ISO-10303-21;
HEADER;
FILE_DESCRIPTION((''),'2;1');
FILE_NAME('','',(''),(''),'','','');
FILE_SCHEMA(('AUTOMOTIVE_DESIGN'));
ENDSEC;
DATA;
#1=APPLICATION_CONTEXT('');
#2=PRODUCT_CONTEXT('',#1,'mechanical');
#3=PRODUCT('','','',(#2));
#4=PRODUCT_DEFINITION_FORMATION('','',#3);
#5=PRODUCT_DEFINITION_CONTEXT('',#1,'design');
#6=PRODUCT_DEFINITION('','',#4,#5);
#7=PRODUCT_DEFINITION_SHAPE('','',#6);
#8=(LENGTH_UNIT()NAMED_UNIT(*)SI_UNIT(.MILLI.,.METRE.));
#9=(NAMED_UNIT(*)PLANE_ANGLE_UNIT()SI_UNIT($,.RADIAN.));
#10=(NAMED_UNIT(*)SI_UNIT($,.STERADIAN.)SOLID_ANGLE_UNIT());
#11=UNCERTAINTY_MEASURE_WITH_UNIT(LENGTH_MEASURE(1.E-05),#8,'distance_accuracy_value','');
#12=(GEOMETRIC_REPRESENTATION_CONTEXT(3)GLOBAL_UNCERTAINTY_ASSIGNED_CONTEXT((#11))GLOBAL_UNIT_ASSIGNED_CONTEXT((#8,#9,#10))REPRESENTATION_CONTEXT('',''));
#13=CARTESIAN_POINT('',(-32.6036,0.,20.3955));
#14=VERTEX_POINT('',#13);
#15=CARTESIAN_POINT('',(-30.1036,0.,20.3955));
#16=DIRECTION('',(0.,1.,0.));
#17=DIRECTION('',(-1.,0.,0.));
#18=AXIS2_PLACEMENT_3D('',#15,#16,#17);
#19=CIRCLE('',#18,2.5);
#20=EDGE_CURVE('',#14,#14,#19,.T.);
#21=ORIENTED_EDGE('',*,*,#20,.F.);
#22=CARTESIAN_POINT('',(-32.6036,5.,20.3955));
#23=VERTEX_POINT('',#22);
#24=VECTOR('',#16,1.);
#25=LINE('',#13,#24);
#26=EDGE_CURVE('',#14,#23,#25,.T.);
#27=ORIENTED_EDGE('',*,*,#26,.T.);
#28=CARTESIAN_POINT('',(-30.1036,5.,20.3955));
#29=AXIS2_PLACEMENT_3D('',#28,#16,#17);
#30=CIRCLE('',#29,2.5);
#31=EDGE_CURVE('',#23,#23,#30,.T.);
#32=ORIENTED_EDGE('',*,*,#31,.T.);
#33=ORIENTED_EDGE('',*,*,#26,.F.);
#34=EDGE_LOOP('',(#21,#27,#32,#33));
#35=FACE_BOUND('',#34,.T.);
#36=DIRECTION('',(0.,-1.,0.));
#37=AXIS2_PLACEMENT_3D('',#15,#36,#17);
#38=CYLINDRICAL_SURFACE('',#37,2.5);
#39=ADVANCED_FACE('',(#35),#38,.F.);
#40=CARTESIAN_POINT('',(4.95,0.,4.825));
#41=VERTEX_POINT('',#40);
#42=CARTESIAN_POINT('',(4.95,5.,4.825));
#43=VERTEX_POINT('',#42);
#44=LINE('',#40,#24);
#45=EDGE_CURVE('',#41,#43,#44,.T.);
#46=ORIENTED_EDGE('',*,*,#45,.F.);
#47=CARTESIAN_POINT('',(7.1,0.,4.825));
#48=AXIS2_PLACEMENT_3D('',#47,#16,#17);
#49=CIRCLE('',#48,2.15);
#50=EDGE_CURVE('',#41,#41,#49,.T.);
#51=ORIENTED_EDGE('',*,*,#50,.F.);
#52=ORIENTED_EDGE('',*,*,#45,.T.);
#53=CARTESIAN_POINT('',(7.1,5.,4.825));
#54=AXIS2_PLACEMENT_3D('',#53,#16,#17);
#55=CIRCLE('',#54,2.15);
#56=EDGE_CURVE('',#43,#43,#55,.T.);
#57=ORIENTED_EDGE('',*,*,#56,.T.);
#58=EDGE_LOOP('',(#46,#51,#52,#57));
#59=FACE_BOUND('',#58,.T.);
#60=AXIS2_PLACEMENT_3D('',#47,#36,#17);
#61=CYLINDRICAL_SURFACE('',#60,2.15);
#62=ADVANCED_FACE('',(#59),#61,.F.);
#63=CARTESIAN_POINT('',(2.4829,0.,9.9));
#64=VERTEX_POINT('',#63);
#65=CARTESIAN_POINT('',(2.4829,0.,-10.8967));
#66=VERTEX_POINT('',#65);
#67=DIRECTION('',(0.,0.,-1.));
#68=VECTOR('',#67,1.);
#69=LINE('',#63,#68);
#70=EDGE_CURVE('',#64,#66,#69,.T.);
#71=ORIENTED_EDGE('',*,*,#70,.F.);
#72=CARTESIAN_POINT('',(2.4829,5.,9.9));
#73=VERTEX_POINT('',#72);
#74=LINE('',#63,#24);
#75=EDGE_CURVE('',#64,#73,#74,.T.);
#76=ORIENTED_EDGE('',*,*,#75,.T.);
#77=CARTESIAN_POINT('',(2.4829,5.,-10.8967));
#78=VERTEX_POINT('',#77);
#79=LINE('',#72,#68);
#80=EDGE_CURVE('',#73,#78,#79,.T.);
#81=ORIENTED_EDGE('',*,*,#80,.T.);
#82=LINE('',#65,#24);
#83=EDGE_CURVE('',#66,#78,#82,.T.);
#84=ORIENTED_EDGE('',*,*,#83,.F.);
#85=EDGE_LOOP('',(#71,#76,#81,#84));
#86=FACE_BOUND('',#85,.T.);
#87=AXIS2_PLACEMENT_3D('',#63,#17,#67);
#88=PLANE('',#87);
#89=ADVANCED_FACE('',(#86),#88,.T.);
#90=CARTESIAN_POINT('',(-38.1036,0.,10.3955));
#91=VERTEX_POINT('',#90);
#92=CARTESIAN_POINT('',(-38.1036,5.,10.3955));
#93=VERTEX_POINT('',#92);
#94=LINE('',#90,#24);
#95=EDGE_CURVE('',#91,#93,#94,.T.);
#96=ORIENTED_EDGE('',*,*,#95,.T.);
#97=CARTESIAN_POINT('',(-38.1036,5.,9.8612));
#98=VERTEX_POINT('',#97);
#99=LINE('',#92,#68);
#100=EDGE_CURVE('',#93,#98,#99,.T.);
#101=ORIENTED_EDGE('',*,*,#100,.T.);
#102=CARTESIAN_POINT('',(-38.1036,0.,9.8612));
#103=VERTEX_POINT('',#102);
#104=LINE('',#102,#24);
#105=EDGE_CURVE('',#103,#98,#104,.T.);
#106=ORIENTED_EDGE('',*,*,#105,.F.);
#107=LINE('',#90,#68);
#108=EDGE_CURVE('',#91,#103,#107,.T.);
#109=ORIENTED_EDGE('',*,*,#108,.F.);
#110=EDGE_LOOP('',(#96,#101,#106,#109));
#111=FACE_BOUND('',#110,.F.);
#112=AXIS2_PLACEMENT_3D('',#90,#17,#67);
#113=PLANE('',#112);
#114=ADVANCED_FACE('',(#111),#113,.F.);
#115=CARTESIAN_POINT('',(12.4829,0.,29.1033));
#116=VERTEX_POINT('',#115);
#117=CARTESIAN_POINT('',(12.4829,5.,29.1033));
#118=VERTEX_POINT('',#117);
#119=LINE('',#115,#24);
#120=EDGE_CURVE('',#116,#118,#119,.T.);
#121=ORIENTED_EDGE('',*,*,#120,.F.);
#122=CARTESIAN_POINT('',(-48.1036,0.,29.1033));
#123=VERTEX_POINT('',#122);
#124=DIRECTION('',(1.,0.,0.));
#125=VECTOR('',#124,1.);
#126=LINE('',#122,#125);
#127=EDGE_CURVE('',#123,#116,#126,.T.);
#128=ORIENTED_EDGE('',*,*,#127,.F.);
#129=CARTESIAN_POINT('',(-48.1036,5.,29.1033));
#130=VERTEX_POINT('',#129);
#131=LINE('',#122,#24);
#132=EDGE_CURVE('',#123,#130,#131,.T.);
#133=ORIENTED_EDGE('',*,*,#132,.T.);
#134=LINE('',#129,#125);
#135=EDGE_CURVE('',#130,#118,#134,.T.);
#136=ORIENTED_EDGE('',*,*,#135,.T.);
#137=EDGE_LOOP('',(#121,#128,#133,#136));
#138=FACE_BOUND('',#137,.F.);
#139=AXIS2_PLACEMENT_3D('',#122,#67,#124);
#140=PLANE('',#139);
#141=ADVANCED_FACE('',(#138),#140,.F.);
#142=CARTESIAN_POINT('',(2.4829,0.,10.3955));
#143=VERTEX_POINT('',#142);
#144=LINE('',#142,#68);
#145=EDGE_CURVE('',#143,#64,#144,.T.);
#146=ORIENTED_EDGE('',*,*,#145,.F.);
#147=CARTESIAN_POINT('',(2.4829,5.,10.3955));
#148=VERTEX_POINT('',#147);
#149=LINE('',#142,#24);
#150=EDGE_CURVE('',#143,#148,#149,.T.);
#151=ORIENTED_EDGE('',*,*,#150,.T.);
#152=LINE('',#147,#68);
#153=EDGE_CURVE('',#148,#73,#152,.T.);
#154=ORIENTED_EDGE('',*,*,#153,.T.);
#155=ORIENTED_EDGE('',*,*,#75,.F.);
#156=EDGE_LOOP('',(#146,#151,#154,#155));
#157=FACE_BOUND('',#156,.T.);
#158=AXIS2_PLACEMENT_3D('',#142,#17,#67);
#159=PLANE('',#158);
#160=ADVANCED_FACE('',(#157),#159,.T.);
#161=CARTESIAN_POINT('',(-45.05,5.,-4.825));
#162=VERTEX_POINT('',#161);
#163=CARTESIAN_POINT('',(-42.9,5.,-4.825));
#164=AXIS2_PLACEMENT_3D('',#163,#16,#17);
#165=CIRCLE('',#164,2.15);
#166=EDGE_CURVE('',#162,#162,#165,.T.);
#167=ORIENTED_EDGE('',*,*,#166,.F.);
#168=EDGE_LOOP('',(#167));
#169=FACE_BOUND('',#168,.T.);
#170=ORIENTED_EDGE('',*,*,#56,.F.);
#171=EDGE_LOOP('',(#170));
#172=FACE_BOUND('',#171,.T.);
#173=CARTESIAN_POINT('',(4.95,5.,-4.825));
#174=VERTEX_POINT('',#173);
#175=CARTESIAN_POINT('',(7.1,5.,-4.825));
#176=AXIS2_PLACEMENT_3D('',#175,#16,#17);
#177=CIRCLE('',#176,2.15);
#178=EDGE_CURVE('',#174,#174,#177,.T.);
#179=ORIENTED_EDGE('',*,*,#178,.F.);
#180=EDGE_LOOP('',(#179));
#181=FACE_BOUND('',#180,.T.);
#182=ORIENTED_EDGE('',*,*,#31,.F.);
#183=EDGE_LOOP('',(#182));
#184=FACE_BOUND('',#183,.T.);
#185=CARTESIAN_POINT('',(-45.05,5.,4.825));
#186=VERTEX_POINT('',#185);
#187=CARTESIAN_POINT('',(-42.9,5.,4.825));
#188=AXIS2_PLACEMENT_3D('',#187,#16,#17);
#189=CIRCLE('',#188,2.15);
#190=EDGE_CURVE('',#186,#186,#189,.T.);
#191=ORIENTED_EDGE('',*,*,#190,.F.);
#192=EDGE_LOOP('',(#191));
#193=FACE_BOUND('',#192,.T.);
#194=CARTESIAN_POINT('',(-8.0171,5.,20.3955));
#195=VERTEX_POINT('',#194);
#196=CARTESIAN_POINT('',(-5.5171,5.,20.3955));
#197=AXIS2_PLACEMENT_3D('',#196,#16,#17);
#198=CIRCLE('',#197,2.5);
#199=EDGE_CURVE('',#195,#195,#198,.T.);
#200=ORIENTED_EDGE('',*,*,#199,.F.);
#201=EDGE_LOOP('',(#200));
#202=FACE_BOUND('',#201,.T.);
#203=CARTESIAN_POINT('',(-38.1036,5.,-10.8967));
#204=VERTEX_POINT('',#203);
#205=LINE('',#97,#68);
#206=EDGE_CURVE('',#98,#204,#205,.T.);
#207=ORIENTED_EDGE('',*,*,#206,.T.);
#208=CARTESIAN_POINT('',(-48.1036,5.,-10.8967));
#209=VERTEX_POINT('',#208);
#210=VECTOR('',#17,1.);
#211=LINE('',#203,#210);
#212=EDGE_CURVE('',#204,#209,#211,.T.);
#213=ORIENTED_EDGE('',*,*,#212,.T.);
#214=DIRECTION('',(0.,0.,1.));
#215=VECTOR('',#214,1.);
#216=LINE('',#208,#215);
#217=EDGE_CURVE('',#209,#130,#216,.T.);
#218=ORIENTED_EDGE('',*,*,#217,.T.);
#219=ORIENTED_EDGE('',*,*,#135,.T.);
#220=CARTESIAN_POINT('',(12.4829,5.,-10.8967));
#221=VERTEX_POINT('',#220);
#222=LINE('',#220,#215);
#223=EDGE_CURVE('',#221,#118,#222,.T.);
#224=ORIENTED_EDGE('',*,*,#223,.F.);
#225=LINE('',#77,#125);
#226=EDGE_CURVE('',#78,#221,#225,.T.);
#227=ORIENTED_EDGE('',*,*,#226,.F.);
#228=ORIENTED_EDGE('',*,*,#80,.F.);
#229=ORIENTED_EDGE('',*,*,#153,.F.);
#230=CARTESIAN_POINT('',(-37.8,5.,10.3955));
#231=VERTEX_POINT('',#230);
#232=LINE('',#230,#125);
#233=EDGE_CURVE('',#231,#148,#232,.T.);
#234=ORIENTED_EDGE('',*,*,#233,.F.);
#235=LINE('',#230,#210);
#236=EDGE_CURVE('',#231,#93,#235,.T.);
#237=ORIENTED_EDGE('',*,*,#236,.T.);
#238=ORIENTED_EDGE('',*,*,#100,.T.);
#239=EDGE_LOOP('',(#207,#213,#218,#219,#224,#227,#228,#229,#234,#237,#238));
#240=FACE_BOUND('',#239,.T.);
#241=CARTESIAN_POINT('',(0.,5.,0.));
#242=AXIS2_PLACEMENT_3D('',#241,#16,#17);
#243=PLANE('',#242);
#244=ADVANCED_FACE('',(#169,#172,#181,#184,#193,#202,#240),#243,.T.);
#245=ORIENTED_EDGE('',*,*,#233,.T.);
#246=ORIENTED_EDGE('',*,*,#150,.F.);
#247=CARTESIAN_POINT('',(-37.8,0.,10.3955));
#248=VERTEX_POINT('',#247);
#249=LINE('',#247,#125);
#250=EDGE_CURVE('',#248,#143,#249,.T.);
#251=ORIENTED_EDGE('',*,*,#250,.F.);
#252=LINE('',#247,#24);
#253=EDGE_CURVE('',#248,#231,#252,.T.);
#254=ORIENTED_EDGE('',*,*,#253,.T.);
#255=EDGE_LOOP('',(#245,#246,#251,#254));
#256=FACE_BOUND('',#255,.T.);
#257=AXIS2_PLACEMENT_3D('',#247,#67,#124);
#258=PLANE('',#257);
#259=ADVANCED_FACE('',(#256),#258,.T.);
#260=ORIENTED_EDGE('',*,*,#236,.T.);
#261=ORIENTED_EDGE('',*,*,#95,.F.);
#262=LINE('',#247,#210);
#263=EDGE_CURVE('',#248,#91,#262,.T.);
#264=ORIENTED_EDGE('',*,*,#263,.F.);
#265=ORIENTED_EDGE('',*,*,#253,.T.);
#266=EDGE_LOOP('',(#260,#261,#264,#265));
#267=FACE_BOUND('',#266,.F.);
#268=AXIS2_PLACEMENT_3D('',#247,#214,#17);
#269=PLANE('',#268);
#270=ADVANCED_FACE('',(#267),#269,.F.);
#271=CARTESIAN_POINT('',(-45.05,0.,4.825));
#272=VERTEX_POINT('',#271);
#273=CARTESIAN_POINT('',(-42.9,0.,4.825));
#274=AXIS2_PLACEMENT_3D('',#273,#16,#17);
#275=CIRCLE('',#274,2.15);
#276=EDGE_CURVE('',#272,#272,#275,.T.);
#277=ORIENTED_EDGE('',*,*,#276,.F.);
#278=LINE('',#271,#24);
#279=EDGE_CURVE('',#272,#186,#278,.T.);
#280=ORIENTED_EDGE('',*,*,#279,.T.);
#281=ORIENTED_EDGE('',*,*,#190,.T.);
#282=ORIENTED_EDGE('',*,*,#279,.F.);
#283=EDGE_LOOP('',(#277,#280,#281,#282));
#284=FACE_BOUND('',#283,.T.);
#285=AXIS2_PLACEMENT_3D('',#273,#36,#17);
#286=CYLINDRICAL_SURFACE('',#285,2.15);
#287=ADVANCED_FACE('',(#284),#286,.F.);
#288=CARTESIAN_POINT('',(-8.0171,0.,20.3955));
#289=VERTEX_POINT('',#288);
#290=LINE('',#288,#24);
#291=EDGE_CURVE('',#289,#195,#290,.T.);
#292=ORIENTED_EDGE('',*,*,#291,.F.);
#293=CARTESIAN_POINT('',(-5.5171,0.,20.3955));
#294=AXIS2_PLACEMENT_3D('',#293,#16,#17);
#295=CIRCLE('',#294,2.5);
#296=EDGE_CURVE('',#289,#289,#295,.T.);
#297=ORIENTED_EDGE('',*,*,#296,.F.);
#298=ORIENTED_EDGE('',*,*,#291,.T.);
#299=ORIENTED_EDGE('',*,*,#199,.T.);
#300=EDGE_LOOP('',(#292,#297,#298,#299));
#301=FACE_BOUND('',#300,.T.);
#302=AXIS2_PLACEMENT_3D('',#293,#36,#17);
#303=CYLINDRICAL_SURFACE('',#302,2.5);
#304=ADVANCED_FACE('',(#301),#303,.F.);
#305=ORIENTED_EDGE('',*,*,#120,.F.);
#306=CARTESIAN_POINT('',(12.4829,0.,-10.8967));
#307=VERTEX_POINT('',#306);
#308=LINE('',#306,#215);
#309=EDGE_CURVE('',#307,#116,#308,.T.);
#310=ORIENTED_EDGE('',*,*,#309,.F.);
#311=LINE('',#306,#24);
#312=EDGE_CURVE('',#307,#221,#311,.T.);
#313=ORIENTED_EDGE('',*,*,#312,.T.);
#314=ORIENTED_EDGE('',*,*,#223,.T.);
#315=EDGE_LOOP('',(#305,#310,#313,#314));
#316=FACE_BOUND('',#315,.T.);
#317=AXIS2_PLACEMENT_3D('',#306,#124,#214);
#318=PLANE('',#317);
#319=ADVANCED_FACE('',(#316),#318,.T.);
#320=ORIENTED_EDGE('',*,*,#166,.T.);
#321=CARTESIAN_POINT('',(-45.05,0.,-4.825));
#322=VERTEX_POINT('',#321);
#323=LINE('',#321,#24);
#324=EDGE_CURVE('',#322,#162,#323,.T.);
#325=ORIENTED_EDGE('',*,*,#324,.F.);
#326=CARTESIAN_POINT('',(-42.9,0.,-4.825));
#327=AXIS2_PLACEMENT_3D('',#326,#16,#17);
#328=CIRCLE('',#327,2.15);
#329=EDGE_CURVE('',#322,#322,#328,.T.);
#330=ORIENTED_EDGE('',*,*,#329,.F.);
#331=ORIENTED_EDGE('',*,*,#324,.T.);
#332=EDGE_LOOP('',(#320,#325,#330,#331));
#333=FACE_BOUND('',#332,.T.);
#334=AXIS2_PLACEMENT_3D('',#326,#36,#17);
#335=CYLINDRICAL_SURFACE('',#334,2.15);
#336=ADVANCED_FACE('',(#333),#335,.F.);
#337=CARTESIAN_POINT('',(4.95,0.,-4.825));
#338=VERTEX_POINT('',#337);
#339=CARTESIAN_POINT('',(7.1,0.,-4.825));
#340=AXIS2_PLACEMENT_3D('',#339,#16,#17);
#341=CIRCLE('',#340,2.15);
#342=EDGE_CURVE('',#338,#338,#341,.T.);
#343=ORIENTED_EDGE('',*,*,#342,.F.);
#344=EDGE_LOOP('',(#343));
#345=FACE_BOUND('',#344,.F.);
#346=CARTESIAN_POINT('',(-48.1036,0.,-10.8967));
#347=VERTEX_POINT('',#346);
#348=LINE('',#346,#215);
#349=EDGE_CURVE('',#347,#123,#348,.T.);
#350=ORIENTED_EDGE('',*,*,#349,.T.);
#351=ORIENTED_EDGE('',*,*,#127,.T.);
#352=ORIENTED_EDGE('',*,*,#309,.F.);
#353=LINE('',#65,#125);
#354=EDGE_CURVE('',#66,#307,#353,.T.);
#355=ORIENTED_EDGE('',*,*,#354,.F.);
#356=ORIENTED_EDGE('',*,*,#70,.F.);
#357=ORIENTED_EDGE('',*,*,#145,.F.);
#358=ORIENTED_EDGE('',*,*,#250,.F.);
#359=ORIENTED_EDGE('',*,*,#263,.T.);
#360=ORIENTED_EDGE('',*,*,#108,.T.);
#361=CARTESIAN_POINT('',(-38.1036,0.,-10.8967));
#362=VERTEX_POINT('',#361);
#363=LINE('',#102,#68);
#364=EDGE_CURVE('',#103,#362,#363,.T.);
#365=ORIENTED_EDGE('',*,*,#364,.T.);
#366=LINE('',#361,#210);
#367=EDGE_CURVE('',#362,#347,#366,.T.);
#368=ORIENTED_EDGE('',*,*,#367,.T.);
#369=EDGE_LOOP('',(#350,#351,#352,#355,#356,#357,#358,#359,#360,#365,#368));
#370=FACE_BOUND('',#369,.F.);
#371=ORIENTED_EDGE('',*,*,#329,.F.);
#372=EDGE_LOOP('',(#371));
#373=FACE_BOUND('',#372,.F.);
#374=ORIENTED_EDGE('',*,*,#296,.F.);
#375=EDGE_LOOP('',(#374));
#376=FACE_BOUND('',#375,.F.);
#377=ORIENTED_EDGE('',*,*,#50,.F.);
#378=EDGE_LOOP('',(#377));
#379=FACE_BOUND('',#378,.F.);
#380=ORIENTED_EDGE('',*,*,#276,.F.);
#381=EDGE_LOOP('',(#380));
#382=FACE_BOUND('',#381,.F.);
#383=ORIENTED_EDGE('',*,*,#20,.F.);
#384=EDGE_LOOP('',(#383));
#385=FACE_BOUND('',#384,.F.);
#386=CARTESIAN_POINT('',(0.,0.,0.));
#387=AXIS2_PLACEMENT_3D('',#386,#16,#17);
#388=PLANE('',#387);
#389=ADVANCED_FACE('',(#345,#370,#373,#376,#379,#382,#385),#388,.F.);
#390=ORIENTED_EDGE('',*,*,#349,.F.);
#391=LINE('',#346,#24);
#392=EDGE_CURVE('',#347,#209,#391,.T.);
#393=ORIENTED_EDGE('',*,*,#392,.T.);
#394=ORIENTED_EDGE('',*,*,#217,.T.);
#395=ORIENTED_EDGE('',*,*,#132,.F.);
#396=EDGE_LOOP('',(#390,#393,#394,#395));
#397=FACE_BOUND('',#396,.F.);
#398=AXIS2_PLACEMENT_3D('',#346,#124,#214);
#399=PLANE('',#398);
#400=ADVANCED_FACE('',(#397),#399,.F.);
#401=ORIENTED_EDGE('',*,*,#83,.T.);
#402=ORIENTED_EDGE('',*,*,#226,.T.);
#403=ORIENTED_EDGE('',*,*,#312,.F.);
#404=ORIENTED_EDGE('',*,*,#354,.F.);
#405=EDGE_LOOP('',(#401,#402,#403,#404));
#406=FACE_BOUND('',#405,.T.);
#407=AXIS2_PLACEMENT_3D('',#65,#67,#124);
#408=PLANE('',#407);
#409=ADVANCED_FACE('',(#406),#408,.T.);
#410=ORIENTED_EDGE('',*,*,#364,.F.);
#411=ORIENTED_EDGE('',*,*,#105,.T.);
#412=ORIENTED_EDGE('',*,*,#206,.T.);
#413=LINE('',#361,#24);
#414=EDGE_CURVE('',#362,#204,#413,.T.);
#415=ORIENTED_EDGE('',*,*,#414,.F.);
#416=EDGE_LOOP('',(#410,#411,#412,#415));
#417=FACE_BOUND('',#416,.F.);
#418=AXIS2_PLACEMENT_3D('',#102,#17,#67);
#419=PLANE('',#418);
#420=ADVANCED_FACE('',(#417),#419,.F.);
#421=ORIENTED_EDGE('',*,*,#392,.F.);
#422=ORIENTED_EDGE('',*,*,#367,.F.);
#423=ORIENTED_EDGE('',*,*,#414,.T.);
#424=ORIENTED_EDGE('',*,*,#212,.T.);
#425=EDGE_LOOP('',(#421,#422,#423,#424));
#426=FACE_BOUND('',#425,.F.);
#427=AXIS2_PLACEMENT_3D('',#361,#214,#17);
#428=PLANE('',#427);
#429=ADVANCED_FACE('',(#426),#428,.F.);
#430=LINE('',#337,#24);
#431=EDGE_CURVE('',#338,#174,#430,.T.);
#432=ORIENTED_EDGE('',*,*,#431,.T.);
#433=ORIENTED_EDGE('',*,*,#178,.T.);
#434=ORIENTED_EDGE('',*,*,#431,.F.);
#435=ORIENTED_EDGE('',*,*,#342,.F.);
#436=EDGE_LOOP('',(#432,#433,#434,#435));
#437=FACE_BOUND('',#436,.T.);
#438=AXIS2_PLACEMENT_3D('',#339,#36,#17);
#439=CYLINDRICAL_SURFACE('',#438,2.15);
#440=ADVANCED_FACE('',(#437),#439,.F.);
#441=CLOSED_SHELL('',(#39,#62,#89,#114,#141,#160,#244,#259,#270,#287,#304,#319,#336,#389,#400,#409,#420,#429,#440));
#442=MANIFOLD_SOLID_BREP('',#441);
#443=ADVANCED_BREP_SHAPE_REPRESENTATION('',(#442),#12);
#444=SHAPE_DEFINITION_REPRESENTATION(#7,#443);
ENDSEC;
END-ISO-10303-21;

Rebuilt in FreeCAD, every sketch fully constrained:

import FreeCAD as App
import Part
import Sketcher
Q = App.Units.Quantity


def add_polygon(sketch, points):
    """Adds a closed chain of lines whose ends are joined by coincident constraints."""
    first, n = sketch.GeometryCount, len(points)
    for a, b in zip(points, points[1:] + points[:1]):
        sketch.addGeometry(Part.LineSegment(App.Vector(*a, 0), App.Vector(*b, 0)), False)
    for i in range(n):
        sketch.addConstraint(Sketcher.Constraint("Coincident", first + i, 2, first + (i + 1) % n, 1))

doc = App.newDocument("Part")
params = doc.addObject("Spreadsheet::Sheet", "Params")
for row, (alias, value) in enumerate([
    ("sketch1_diameter", "5 mm"),
    ("sketch1_diameter2", "4.3 mm"),
    ("sketch1_width", "10 mm"),
    ("sketch1_height", "40 mm"),
    ("pad1_length", "5 mm"),
], start=1):
    params.set(f"A{row}", alias)
    params.set(f"B{row}", "=" + value)
    params.setAlias(f"B{row}", alias)

body = doc.addObject("PartDesign::Body", "Body")

sketch1 = body.newObject("Sketcher::SketchObject", "Sketch")
sketch1.AttachmentSupport = (doc.getObject("XZ_Plane"), [""])
sketch1.MapMode = "FlatFace"
add_polygon(sketch1, [(2.5, -10.9), (2.5, 10.4), (-38.1, 10.4), (-38.1, -10.9), (-48.1, -10.9), (-48.1, 29.1), (12.5, 29.1), (12.5, -10.9)])
sketch1.addGeometry(Part.Circle(App.Vector(7.1, -4.8, 0), App.Vector(0, 0, 1), 2.1), False)
sketch1.addGeometry(Part.Circle(App.Vector(7.1, 4.8, 0), App.Vector(0, 0, 1), 2.1), False)
sketch1.addGeometry(Part.Circle(App.Vector(-42.9, -4.8, 0), App.Vector(0, 0, 1), 2.1), False)
sketch1.addGeometry(Part.Circle(App.Vector(-42.9, 4.8, 0), App.Vector(0, 0, 1), 2.1), False)
sketch1.addGeometry(Part.Circle(App.Vector(-5.5, 20.4, 0), App.Vector(0, 0, 1), 2.5), False)
sketch1.addGeometry(Part.Circle(App.Vector(-30.1, 20.4, 0), App.Vector(0, 0, 1), 2.5), False)
sketch1.addConstraint([
    Sketcher.Constraint("Vertical", 0),
    Sketcher.Constraint("Horizontal", 1),
    Sketcher.Constraint("Vertical", 2),
    Sketcher.Constraint("Horizontal", 3),
    Sketcher.Constraint("Vertical", 4),
    Sketcher.Constraint("Horizontal", 5),
    Sketcher.Constraint("Vertical", 6),
    Sketcher.Constraint("Horizontal", 7),
    Sketcher.Constraint("Equal", 8, 9),
    Sketcher.Constraint("Equal", 9, 10),
    Sketcher.Constraint("Equal", 10, 11),
    Sketcher.Constraint("Equal", 12, 13),
    Sketcher.Constraint("Symmetric", 8, 3, 9, 3, -1),
    Sketcher.Constraint("Symmetric", 10, 3, 11, 3, -1),
    Sketcher.Constraint("Horizontal", 8, 3, 10, 3),
    Sketcher.Constraint("Horizontal", 12, 3, 13, 3),
    Sketcher.Constraint("Horizontal", 3, 2, 6, 2),
    Sketcher.Constraint("Equal", 3, 7),
    Sketcher.Constraint("Diameter", 12, Q("5 mm")),
    Sketcher.Constraint("Diameter", 8, Q("4.3 mm")),
    Sketcher.Constraint("DistanceX", 3, 2, 3, 1, Q("10 mm")),
    Sketcher.Constraint("DistanceY", 4, 1, 4, 2, Q("40 mm")),
    Sketcher.Constraint("DistanceY", 0, 2, 12, 3, Q("10 mm")),
    Sketcher.Constraint("DistanceX", 3, 2, 13, 3, Q("18 mm")),
    Sketcher.Constraint("DistanceX", 12, 3, 5, 2, Q("18 mm")),
    Sketcher.Constraint("DistanceY", 8, 3, 9, 3, Q("9.65 mm")),
    Sketcher.Constraint("DistanceX", 10, 3, 8, 3, Q("50 mm")),
    Sketcher.Constraint("DistanceX", 0, 2, 9, 3, Q("4.617 mm")),
    Sketcher.Constraint("DistanceX", -1, 1, 8, 3, Q("7.1 mm")),
    Sketcher.Constraint("DistanceX", 11, 3, 1, 2, Q("4.7964 mm")),
    Sketcher.Constraint("DistanceY", 2, 2, 10, 3, Q("6.0717 mm")),
    Sketcher.Constraint("DistanceY", 0, 1, 0, 2, Q("21.2922 mm")),
])
sketch1.setExpression("Constraints[26]", "Params.sketch1_diameter")
sketch1.setExpression("Constraints[27]", "Params.sketch1_diameter2")
sketch1.setExpression("Constraints[28]", "Params.sketch1_width")
sketch1.setExpression("Constraints[29]", "Params.sketch1_height")
pad1 = body.newObject("PartDesign::Pad", "Pad")
pad1.Profile = sketch1
pad1.setExpression("Length", "Params.pad1_length")
pad1.Reversed = True

doc.recompute()
